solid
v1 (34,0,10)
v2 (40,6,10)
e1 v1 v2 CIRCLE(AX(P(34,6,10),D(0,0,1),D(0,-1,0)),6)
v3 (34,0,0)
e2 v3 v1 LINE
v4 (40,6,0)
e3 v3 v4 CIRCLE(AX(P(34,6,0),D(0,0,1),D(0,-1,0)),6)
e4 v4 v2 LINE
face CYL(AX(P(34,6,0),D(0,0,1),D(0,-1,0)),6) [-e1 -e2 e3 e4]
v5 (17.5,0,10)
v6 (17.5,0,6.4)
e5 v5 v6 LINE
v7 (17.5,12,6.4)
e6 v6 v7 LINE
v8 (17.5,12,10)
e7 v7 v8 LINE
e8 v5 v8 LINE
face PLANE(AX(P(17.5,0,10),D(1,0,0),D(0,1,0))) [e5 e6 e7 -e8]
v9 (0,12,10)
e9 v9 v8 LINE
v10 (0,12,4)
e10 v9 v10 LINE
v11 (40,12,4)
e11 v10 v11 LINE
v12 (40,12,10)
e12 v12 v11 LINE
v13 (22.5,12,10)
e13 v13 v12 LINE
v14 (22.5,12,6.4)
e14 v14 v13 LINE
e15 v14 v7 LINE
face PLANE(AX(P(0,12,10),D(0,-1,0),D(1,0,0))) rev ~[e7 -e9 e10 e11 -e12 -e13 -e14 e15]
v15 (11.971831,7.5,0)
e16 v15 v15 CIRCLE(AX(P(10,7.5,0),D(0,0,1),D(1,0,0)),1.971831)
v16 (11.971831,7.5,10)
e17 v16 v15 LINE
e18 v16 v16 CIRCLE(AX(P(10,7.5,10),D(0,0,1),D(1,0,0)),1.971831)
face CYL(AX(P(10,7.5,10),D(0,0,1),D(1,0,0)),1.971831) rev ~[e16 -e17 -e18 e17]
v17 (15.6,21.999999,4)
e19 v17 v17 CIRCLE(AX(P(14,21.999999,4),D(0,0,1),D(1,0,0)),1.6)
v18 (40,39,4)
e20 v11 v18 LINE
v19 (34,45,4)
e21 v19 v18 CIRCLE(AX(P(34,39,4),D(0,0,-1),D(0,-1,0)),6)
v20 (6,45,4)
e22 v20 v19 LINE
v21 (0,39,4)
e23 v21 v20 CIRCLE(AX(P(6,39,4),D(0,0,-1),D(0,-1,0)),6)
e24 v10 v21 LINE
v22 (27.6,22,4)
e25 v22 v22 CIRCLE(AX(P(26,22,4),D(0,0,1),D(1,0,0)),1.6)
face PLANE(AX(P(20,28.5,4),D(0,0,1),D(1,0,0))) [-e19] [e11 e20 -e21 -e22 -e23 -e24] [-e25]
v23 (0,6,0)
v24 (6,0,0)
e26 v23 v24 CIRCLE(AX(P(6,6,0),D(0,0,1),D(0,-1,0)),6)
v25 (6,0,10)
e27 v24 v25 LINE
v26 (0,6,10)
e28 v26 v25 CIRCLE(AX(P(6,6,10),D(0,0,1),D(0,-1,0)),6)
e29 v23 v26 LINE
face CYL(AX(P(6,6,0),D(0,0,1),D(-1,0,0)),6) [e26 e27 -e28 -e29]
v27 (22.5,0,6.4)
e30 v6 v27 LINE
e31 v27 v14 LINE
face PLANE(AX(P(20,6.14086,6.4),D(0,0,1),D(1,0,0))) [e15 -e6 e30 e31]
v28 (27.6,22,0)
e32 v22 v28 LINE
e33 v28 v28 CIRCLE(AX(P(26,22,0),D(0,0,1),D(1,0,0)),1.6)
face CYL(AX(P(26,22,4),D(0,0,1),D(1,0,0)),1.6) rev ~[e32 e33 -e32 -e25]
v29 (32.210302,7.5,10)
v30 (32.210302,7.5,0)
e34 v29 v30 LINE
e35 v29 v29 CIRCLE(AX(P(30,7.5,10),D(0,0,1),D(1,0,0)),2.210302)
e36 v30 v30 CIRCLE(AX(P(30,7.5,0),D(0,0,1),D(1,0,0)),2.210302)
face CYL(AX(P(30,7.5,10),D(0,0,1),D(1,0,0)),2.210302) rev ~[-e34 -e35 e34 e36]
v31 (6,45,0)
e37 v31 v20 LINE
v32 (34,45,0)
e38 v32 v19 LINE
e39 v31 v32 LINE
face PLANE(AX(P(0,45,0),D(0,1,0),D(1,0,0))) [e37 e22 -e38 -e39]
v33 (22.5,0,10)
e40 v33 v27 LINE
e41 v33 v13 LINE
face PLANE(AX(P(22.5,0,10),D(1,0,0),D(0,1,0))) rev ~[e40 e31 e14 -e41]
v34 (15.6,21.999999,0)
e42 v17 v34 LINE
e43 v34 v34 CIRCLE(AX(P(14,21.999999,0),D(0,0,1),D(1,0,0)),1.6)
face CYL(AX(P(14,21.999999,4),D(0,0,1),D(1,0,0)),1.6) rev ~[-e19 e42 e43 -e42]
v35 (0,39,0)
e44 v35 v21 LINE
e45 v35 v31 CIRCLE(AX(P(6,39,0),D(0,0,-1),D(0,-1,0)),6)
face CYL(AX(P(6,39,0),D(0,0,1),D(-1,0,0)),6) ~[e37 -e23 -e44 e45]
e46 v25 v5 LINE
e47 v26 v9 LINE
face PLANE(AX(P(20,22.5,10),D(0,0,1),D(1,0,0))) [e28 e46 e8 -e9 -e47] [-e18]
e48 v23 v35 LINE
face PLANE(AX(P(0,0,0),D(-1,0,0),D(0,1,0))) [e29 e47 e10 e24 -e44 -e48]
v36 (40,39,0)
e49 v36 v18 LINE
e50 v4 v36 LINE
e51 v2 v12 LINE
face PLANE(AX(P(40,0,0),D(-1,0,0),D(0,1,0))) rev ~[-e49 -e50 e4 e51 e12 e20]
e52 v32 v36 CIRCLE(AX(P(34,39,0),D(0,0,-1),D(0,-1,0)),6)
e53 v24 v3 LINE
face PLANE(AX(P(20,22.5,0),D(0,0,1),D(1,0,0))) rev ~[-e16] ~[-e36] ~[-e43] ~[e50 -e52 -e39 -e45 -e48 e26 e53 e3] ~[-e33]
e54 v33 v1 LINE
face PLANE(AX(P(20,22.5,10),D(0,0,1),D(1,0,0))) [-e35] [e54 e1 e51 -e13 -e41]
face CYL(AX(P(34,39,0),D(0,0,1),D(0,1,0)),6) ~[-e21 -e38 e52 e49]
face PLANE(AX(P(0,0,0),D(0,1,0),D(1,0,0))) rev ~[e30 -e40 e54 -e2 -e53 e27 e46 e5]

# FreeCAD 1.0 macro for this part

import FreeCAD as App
import Part
import Sketcher

V = App.Vector
Q = App.Units.Quantity


def edges_at(feature, points):
    """Names of the edges that pass closest to the given points."""
    edges = feature.Shape.Edges
    near = lambda p: min(range(len(edges)), key=lambda i: edges[i].distToShape(Part.Vertex(*p))[0])
    return sorted({f"Edge{near(p) + 1}" for p in points})


def add_polygon(sketch, points):
    """Adds a closed chain of lines whose ends are joined by coincident constraints."""
    first, n = sketch.GeometryCount, len(points)
    for a, b in zip(points, points[1:] + points[:1]):
        sketch.addGeometry(Part.LineSegment(App.Vector(*a, 0), App.Vector(*b, 0)), False)
    for i in range(n):
        sketch.addConstraint(Sketcher.Constraint("Coincident", first + i, 2, first + (i + 1) % n, 1))

doc = App.newDocument("Part")
body = doc.addObject("PartDesign::Body", "Body")

# Sketch on XY plane
sketch1 = body.newObject("Sketcher::SketchObject", "Sketch")
sketch1.AttachmentSupport = (doc.getObject("XY_Plane"), [""])
sketch1.MapMode = "FlatFace"
add_polygon(sketch1, [(0, 45), (0, 0), (40, 0), (40, 45)])  # lines 0-3
sketch1.addConstraint(Sketcher.Constraint("Vertical", 0))
sketch1.addConstraint(Sketcher.Constraint("Horizontal", 1))
sketch1.addConstraint(Sketcher.Constraint("Vertical", 2))
sketch1.addConstraint(Sketcher.Constraint("Horizontal", 3))
sketch1.addConstraint(Sketcher.Constraint("Coincident", 0, 2, -1, 1))
sketch1.addConstraint(Sketcher.Constraint("DistanceX", 1, 1, 1, 2, Q("40 mm")))
sketch1.addConstraint(Sketcher.Constraint("DistanceY", 0, 2, 0, 1, Q("45 mm")))
pad1 = body.newObject("PartDesign::Pad", "Pad")
pad1.Profile = sketch1
pad1.Length = 10

# Sketch on XY plane
sketch2 = body.newObject("Sketcher::SketchObject", "Sketch001")
sketch2.AttachmentSupport = (doc.getObject("XY_Plane"), [""])
sketch2.MapMode = "FlatFace"
sketch2.AttachmentOffset = App.Placement(V(0, 0, 10), App.Rotation())
sketch2.addGeometry(Part.Circle(V(10, 7.5, 0), V(0, 0, 1), 2), False)
sketch2.addGeometry(Part.Circle(V(30, 7.5, 0), V(0, 0, 1), 2.2), False)
sketch2.addConstraint(Sketcher.Constraint("Horizontal", 0, 3, 1, 3))
sketch2.addConstraint(Sketcher.Constraint("DistanceX", -1, 1, 0, 3, Q("10 mm")))
sketch2.addConstraint(Sketcher.Constraint("DistanceX", -1, 1, 1, 3, Q("30 mm")))
sketch2.addConstraint(Sketcher.Constraint("DistanceY", -1, 1, 0, 3, Q("7.5 mm")))
sketch2.addConstraint(Sketcher.Constraint("Diameter", 0, Q("3.943662 mm")))
sketch2.addConstraint(Sketcher.Constraint("Diameter", 1, Q("4.420604 mm")))
pocket1 = body.newObject("PartDesign::Pocket", "Pocket")
pocket1.Profile = sketch2
pocket1.Length = 10

# Sketch on XY plane
sketch3 = body.newObject("Sketcher::SketchObject", "Sketch002")
sketch3.AttachmentSupport = (doc.getObject("XY_Plane"), [""])
sketch3.MapMode = "FlatFace"
sketch3.AttachmentOffset = App.Placement(V(0, 0, 10), App.Rotation())
add_polygon(sketch3, [(0, 45), (0, 12), (40, 12), (40, 45)])  # lines 0-3
sketch3.addConstraint(Sketcher.Constraint("Vertical", 0))
sketch3.addConstraint(Sketcher.Constraint("Horizontal", 1))
sketch3.addConstraint(Sketcher.Constraint("Vertical", 2))
sketch3.addConstraint(Sketcher.Constraint("Horizontal", 3))
sketch3.addConstraint(Sketcher.Constraint("PointOnObject", 0, 2, -2))
sketch3.addConstraint(Sketcher.Constraint("DistanceX", 1, 1, 1, 2, Q("40 mm")))
sketch3.addConstraint(Sketcher.Constraint("DistanceY", 0, 2, 0, 1, Q("33 mm")))
sketch3.addConstraint(Sketcher.Constraint("DistanceY", -1, 1, 0, 2, Q("12 mm")))
pocket2 = body.newObject("PartDesign::Pocket", "Pocket001")
pocket2.Profile = sketch3
pocket2.Length = 6

# Sketch on XY plane
sketch4 = body.newObject("Sketcher::SketchObject", "Sketch003")
sketch4.AttachmentSupport = (doc.getObject("XY_Plane"), [""])
sketch4.MapMode = "FlatFace"
sketch4.AttachmentOffset = App.Placement(V(0, 0, 4), App.Rotation())
sketch4.addGeometry(Part.Circle(V(14, 22, 0), V(0, 0, 1), 1.6), False)
sketch4.addGeometry(Part.Circle(V(26, 22, 0), V(0, 0, 1), 1.6), False)
sketch4.addConstraint(Sketcher.Constraint("Equal", 0, 1))
sketch4.addConstraint(Sketcher.Constraint("Horizontal", 0, 3, 1, 3))
sketch4.addConstraint(Sketcher.Constraint("Diameter", 0, Q("3.2 mm")))
sketch4.addConstraint(Sketcher.Constraint("DistanceX", -1, 1, 0, 3, Q("14 mm")))
sketch4.addConstraint(Sketcher.Constraint("DistanceY", -1, 1, 0, 3, Q("21.999999 mm")))
sketch4.addConstraint(Sketcher.Constraint("DistanceX", -1, 1, 1, 3, Q("26 mm")))
pocket3 = body.newObject("PartDesign::Pocket", "Pocket002")
pocket3.Profile = sketch4
pocket3.Length = 5

# Sketch on XY plane
sketch5 = body.newObject("Sketcher::SketchObject", "Sketch004")
sketch5.AttachmentSupport = (doc.getObject("XY_Plane"), [""])
sketch5.MapMode = "FlatFace"
sketch5.AttachmentOffset = App.Placement(V(0, 0, 10), App.Rotation())
add_polygon(sketch5, [(18, 12), (18, 0), (22, 0), (22, 12)])  # lines 0-3
sketch5.addConstraint(Sketcher.Constraint("Vertical", 0))
sketch5.addConstraint(Sketcher.Constraint("Horizontal", 1))
sketch5.addConstraint(Sketcher.Constraint("Vertical", 2))
sketch5.addConstraint(Sketcher.Constraint("Horizontal", 3))
sketch5.addConstraint(Sketcher.Constraint("PointOnObject", 0, 2, -1))
sketch5.addConstraint(Sketcher.Constraint("DistanceX", 1, 1, 1, 2, Q("5 mm")))
sketch5.addConstraint(Sketcher.Constraint("DistanceX", -1, 1, 0, 2, Q("17.5 mm")))
sketch5.addConstraint(Sketcher.Constraint("DistanceY", 0, 2, 0, 1, Q("12.28172 mm")))
pocket4 = body.newObject("PartDesign::Pocket", "Pocket003")
pocket4.Profile = sketch5
pocket4.Length = 3.6
doc.recompute()

fillet = body.newObject("PartDesign::Fillet", "Fillet")
fillet.Base = (pocket4, edges_at(pocket4, [
    (40, 0, 5),
    (0, 0, 5),
    (40, 45, 2),
    (0, 45, 2),
]))
fillet.Radius = 6

doc.recompute()
